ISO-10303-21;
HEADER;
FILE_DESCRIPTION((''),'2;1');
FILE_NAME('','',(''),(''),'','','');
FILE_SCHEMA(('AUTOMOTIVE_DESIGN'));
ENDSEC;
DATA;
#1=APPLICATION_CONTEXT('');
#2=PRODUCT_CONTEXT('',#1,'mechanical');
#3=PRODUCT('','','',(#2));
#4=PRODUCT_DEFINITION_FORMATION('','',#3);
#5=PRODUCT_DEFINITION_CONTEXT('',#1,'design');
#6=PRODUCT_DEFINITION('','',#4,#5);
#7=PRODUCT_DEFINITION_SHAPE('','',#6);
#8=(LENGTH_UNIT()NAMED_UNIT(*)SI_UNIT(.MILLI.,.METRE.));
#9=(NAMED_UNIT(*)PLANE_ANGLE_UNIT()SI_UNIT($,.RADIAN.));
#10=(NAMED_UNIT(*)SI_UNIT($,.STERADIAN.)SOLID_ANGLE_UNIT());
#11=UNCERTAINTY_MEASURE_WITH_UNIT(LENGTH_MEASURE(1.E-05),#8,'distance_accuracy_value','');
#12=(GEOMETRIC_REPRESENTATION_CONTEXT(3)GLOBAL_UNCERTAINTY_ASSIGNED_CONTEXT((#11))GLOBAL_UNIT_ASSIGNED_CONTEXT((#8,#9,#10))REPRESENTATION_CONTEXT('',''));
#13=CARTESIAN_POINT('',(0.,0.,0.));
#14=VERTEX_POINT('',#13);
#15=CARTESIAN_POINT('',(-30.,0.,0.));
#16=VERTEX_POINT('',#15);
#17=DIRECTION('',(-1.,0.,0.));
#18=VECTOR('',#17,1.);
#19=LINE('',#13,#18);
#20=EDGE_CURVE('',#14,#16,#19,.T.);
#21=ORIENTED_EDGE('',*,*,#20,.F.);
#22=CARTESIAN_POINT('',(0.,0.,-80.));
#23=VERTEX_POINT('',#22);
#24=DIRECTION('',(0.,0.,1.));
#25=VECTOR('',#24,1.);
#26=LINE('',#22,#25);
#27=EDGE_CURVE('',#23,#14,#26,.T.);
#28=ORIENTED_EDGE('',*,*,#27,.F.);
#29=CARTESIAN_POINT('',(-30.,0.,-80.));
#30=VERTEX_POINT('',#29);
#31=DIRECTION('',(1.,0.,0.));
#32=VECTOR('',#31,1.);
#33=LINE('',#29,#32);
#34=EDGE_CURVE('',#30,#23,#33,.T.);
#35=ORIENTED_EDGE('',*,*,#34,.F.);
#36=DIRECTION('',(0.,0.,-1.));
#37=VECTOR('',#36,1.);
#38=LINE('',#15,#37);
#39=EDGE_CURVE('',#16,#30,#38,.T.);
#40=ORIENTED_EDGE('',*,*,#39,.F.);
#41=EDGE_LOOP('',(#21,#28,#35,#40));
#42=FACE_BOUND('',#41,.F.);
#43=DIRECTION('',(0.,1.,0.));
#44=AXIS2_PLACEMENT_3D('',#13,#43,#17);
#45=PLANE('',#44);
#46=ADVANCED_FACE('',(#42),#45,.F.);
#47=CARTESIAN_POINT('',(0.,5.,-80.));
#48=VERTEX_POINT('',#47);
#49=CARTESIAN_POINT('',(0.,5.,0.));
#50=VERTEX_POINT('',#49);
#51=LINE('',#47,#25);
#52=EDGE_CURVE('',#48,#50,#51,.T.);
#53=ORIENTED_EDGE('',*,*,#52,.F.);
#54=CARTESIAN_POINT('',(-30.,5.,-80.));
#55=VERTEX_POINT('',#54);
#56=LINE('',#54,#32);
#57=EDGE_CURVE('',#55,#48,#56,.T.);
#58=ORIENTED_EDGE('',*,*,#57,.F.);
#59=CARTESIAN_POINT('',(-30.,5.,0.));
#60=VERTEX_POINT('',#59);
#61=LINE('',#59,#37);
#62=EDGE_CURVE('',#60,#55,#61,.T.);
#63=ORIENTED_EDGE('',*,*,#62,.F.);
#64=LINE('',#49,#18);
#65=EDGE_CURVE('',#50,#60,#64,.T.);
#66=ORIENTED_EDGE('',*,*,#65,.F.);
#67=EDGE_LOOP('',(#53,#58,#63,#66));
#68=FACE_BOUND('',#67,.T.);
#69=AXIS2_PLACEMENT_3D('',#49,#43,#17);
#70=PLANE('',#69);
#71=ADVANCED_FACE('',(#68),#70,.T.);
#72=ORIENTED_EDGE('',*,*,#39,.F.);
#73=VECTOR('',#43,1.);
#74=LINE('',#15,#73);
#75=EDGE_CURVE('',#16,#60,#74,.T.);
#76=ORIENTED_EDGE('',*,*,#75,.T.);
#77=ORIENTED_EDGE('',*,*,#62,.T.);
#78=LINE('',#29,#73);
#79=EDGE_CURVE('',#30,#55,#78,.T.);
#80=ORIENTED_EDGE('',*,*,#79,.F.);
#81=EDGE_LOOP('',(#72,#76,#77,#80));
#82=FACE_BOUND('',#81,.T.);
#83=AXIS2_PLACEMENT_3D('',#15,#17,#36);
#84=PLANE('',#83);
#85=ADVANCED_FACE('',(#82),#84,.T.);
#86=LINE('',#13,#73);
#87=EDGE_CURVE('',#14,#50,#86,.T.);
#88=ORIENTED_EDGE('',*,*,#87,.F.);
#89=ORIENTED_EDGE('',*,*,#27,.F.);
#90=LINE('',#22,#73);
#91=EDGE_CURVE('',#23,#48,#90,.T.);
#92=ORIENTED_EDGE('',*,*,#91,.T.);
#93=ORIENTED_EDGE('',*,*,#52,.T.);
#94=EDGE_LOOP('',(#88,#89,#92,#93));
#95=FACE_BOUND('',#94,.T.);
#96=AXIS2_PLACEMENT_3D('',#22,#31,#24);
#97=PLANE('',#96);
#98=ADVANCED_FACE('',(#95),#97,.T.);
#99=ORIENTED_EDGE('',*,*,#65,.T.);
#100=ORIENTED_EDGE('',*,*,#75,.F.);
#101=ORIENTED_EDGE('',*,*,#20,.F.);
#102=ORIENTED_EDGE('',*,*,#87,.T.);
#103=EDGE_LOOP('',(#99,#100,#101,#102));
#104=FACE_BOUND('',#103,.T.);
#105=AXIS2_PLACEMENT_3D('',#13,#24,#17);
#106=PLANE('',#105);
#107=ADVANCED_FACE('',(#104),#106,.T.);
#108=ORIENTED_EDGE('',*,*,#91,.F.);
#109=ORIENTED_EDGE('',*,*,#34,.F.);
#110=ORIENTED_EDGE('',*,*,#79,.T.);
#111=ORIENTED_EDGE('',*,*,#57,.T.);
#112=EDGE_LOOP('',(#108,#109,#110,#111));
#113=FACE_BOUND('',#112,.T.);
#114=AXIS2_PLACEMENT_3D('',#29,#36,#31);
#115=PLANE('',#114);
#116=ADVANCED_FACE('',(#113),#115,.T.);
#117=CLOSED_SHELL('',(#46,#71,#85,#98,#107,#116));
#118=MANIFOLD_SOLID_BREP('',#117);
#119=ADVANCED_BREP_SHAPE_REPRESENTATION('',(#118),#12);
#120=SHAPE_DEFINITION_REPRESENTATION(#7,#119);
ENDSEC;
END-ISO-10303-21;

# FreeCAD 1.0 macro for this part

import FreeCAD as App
import Part
import Sketcher

V = App.Vector
Q = App.Units.Quantity

doc = App.newDocument("Part")
body = doc.addObject("PartDesign::Body", "Body")

# Sketch on XZ plane
sketch1 = body.newObject("Sketcher::SketchObject", "Sketch")
sketch1.AttachmentSupport = (doc.getObject("XZ_Plane"), [""])
sketch1.MapMode = "FlatFace"
sketch1.addGeometry(Part.LineSegment(V(-30, 0, 0), V(0, 0, 0)), False)
sketch1.addGeometry(Part.LineSegment(V(0, 0, 0), V(0, -80, 0)), False)
sketch1.addGeometry(Part.LineSegment(V(0, -80, 0), V(-30, -80, 0)), False)
sketch1.addGeometry(Part.LineSegment(V(-30, -80, 0), V(-30, 0, 0)), False)
sketch1.addConstraint(Sketcher.Constraint("Coincident", 0, 2, 1, 1))
sketch1.addConstraint(Sketcher.Constraint("Coincident", 1, 2, 2, 1))
sketch1.addConstraint(Sketcher.Constraint("Coincident", 2, 2, 3, 1))
sketch1.addConstraint(Sketcher.Constraint("Coincident", 3, 2, 0, 1))
sketch1.addConstraint(Sketcher.Constraint("Horizontal", 0))
sketch1.addConstraint(Sketcher.Constraint("Vertical", 1))
sketch1.addConstraint(Sketcher.Constraint("Horizontal", 2))
sketch1.addConstraint(Sketcher.Constraint("Vertical", 3))
sketch1.addConstraint(Sketcher.Constraint("Coincident", 0, 2, -1, 1))
sketch1.addConstraint(Sketcher.Constraint("DistanceX", 0, 1, 0, 2, Q("30 mm")))
sketch1.addConstraint(Sketcher.Constraint("DistanceY", 1, 2, 1, 1, Q("80 mm")))
pad1 = body.newObject("PartDesign::Pad", "Pad")
pad1.Profile = sketch1
pad1.Length = 5
pad1.Reversed = True

doc.recompute()
